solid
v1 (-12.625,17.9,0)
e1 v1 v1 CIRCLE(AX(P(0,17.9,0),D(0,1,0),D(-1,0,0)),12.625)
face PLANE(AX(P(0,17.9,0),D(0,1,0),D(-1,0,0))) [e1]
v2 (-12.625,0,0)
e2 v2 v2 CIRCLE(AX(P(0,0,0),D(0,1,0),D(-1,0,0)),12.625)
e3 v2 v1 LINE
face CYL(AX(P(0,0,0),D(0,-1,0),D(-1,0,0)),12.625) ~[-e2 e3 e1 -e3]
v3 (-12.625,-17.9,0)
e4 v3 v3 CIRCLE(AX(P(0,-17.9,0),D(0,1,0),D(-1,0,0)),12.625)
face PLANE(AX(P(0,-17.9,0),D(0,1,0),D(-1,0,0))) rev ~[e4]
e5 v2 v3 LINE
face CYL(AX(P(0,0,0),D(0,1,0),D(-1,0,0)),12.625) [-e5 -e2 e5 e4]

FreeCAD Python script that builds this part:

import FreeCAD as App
import Part
import Sketcher
from FreeCAD import Vector
Q = App.Units.Quantity

doc = App.newDocument("Part")
params = doc.addObject("Spreadsheet::Sheet", "Params")
for row, (alias, value) in enumerate([
    ("sketch1_diameter", "25.25 mm"),
    ("pad1_length", "35.8 mm"),
], start=1):
    params.set(f"A{row}", alias)
    params.set(f"B{row}", "=" + value)
    params.setAlias(f"B{row}", alias)

body = doc.addObject("PartDesign::Body", "Body")

sketch1 = body.newObject("Sketcher::SketchObject", "Sketch")
sketch1.AttachmentSupport = (doc.getObject("XZ_Plane"), [""])
sketch1.MapMode = "FlatFace"
sketch1.addGeometry(Part.Circle(Vector(0, 0, 0), Vector(0, 0, 1), 13), False)
sketch1.addConstraint([
    Sketcher.Constraint("Coincident", 0, 3, -1, 1),
    Sketcher.Constraint("Diameter", 0, Q("25.25 mm")),
])
sketch1.setExpression("Constraints[1]", "Params.sketch1_diameter")
pad1 = body.newObject("PartDesign::Pad", "Pad")
pad1.Profile = sketch1
pad1.setExpression("Length", "Params.pad1_length")
pad1.Midplane = True

doc.recompute()
